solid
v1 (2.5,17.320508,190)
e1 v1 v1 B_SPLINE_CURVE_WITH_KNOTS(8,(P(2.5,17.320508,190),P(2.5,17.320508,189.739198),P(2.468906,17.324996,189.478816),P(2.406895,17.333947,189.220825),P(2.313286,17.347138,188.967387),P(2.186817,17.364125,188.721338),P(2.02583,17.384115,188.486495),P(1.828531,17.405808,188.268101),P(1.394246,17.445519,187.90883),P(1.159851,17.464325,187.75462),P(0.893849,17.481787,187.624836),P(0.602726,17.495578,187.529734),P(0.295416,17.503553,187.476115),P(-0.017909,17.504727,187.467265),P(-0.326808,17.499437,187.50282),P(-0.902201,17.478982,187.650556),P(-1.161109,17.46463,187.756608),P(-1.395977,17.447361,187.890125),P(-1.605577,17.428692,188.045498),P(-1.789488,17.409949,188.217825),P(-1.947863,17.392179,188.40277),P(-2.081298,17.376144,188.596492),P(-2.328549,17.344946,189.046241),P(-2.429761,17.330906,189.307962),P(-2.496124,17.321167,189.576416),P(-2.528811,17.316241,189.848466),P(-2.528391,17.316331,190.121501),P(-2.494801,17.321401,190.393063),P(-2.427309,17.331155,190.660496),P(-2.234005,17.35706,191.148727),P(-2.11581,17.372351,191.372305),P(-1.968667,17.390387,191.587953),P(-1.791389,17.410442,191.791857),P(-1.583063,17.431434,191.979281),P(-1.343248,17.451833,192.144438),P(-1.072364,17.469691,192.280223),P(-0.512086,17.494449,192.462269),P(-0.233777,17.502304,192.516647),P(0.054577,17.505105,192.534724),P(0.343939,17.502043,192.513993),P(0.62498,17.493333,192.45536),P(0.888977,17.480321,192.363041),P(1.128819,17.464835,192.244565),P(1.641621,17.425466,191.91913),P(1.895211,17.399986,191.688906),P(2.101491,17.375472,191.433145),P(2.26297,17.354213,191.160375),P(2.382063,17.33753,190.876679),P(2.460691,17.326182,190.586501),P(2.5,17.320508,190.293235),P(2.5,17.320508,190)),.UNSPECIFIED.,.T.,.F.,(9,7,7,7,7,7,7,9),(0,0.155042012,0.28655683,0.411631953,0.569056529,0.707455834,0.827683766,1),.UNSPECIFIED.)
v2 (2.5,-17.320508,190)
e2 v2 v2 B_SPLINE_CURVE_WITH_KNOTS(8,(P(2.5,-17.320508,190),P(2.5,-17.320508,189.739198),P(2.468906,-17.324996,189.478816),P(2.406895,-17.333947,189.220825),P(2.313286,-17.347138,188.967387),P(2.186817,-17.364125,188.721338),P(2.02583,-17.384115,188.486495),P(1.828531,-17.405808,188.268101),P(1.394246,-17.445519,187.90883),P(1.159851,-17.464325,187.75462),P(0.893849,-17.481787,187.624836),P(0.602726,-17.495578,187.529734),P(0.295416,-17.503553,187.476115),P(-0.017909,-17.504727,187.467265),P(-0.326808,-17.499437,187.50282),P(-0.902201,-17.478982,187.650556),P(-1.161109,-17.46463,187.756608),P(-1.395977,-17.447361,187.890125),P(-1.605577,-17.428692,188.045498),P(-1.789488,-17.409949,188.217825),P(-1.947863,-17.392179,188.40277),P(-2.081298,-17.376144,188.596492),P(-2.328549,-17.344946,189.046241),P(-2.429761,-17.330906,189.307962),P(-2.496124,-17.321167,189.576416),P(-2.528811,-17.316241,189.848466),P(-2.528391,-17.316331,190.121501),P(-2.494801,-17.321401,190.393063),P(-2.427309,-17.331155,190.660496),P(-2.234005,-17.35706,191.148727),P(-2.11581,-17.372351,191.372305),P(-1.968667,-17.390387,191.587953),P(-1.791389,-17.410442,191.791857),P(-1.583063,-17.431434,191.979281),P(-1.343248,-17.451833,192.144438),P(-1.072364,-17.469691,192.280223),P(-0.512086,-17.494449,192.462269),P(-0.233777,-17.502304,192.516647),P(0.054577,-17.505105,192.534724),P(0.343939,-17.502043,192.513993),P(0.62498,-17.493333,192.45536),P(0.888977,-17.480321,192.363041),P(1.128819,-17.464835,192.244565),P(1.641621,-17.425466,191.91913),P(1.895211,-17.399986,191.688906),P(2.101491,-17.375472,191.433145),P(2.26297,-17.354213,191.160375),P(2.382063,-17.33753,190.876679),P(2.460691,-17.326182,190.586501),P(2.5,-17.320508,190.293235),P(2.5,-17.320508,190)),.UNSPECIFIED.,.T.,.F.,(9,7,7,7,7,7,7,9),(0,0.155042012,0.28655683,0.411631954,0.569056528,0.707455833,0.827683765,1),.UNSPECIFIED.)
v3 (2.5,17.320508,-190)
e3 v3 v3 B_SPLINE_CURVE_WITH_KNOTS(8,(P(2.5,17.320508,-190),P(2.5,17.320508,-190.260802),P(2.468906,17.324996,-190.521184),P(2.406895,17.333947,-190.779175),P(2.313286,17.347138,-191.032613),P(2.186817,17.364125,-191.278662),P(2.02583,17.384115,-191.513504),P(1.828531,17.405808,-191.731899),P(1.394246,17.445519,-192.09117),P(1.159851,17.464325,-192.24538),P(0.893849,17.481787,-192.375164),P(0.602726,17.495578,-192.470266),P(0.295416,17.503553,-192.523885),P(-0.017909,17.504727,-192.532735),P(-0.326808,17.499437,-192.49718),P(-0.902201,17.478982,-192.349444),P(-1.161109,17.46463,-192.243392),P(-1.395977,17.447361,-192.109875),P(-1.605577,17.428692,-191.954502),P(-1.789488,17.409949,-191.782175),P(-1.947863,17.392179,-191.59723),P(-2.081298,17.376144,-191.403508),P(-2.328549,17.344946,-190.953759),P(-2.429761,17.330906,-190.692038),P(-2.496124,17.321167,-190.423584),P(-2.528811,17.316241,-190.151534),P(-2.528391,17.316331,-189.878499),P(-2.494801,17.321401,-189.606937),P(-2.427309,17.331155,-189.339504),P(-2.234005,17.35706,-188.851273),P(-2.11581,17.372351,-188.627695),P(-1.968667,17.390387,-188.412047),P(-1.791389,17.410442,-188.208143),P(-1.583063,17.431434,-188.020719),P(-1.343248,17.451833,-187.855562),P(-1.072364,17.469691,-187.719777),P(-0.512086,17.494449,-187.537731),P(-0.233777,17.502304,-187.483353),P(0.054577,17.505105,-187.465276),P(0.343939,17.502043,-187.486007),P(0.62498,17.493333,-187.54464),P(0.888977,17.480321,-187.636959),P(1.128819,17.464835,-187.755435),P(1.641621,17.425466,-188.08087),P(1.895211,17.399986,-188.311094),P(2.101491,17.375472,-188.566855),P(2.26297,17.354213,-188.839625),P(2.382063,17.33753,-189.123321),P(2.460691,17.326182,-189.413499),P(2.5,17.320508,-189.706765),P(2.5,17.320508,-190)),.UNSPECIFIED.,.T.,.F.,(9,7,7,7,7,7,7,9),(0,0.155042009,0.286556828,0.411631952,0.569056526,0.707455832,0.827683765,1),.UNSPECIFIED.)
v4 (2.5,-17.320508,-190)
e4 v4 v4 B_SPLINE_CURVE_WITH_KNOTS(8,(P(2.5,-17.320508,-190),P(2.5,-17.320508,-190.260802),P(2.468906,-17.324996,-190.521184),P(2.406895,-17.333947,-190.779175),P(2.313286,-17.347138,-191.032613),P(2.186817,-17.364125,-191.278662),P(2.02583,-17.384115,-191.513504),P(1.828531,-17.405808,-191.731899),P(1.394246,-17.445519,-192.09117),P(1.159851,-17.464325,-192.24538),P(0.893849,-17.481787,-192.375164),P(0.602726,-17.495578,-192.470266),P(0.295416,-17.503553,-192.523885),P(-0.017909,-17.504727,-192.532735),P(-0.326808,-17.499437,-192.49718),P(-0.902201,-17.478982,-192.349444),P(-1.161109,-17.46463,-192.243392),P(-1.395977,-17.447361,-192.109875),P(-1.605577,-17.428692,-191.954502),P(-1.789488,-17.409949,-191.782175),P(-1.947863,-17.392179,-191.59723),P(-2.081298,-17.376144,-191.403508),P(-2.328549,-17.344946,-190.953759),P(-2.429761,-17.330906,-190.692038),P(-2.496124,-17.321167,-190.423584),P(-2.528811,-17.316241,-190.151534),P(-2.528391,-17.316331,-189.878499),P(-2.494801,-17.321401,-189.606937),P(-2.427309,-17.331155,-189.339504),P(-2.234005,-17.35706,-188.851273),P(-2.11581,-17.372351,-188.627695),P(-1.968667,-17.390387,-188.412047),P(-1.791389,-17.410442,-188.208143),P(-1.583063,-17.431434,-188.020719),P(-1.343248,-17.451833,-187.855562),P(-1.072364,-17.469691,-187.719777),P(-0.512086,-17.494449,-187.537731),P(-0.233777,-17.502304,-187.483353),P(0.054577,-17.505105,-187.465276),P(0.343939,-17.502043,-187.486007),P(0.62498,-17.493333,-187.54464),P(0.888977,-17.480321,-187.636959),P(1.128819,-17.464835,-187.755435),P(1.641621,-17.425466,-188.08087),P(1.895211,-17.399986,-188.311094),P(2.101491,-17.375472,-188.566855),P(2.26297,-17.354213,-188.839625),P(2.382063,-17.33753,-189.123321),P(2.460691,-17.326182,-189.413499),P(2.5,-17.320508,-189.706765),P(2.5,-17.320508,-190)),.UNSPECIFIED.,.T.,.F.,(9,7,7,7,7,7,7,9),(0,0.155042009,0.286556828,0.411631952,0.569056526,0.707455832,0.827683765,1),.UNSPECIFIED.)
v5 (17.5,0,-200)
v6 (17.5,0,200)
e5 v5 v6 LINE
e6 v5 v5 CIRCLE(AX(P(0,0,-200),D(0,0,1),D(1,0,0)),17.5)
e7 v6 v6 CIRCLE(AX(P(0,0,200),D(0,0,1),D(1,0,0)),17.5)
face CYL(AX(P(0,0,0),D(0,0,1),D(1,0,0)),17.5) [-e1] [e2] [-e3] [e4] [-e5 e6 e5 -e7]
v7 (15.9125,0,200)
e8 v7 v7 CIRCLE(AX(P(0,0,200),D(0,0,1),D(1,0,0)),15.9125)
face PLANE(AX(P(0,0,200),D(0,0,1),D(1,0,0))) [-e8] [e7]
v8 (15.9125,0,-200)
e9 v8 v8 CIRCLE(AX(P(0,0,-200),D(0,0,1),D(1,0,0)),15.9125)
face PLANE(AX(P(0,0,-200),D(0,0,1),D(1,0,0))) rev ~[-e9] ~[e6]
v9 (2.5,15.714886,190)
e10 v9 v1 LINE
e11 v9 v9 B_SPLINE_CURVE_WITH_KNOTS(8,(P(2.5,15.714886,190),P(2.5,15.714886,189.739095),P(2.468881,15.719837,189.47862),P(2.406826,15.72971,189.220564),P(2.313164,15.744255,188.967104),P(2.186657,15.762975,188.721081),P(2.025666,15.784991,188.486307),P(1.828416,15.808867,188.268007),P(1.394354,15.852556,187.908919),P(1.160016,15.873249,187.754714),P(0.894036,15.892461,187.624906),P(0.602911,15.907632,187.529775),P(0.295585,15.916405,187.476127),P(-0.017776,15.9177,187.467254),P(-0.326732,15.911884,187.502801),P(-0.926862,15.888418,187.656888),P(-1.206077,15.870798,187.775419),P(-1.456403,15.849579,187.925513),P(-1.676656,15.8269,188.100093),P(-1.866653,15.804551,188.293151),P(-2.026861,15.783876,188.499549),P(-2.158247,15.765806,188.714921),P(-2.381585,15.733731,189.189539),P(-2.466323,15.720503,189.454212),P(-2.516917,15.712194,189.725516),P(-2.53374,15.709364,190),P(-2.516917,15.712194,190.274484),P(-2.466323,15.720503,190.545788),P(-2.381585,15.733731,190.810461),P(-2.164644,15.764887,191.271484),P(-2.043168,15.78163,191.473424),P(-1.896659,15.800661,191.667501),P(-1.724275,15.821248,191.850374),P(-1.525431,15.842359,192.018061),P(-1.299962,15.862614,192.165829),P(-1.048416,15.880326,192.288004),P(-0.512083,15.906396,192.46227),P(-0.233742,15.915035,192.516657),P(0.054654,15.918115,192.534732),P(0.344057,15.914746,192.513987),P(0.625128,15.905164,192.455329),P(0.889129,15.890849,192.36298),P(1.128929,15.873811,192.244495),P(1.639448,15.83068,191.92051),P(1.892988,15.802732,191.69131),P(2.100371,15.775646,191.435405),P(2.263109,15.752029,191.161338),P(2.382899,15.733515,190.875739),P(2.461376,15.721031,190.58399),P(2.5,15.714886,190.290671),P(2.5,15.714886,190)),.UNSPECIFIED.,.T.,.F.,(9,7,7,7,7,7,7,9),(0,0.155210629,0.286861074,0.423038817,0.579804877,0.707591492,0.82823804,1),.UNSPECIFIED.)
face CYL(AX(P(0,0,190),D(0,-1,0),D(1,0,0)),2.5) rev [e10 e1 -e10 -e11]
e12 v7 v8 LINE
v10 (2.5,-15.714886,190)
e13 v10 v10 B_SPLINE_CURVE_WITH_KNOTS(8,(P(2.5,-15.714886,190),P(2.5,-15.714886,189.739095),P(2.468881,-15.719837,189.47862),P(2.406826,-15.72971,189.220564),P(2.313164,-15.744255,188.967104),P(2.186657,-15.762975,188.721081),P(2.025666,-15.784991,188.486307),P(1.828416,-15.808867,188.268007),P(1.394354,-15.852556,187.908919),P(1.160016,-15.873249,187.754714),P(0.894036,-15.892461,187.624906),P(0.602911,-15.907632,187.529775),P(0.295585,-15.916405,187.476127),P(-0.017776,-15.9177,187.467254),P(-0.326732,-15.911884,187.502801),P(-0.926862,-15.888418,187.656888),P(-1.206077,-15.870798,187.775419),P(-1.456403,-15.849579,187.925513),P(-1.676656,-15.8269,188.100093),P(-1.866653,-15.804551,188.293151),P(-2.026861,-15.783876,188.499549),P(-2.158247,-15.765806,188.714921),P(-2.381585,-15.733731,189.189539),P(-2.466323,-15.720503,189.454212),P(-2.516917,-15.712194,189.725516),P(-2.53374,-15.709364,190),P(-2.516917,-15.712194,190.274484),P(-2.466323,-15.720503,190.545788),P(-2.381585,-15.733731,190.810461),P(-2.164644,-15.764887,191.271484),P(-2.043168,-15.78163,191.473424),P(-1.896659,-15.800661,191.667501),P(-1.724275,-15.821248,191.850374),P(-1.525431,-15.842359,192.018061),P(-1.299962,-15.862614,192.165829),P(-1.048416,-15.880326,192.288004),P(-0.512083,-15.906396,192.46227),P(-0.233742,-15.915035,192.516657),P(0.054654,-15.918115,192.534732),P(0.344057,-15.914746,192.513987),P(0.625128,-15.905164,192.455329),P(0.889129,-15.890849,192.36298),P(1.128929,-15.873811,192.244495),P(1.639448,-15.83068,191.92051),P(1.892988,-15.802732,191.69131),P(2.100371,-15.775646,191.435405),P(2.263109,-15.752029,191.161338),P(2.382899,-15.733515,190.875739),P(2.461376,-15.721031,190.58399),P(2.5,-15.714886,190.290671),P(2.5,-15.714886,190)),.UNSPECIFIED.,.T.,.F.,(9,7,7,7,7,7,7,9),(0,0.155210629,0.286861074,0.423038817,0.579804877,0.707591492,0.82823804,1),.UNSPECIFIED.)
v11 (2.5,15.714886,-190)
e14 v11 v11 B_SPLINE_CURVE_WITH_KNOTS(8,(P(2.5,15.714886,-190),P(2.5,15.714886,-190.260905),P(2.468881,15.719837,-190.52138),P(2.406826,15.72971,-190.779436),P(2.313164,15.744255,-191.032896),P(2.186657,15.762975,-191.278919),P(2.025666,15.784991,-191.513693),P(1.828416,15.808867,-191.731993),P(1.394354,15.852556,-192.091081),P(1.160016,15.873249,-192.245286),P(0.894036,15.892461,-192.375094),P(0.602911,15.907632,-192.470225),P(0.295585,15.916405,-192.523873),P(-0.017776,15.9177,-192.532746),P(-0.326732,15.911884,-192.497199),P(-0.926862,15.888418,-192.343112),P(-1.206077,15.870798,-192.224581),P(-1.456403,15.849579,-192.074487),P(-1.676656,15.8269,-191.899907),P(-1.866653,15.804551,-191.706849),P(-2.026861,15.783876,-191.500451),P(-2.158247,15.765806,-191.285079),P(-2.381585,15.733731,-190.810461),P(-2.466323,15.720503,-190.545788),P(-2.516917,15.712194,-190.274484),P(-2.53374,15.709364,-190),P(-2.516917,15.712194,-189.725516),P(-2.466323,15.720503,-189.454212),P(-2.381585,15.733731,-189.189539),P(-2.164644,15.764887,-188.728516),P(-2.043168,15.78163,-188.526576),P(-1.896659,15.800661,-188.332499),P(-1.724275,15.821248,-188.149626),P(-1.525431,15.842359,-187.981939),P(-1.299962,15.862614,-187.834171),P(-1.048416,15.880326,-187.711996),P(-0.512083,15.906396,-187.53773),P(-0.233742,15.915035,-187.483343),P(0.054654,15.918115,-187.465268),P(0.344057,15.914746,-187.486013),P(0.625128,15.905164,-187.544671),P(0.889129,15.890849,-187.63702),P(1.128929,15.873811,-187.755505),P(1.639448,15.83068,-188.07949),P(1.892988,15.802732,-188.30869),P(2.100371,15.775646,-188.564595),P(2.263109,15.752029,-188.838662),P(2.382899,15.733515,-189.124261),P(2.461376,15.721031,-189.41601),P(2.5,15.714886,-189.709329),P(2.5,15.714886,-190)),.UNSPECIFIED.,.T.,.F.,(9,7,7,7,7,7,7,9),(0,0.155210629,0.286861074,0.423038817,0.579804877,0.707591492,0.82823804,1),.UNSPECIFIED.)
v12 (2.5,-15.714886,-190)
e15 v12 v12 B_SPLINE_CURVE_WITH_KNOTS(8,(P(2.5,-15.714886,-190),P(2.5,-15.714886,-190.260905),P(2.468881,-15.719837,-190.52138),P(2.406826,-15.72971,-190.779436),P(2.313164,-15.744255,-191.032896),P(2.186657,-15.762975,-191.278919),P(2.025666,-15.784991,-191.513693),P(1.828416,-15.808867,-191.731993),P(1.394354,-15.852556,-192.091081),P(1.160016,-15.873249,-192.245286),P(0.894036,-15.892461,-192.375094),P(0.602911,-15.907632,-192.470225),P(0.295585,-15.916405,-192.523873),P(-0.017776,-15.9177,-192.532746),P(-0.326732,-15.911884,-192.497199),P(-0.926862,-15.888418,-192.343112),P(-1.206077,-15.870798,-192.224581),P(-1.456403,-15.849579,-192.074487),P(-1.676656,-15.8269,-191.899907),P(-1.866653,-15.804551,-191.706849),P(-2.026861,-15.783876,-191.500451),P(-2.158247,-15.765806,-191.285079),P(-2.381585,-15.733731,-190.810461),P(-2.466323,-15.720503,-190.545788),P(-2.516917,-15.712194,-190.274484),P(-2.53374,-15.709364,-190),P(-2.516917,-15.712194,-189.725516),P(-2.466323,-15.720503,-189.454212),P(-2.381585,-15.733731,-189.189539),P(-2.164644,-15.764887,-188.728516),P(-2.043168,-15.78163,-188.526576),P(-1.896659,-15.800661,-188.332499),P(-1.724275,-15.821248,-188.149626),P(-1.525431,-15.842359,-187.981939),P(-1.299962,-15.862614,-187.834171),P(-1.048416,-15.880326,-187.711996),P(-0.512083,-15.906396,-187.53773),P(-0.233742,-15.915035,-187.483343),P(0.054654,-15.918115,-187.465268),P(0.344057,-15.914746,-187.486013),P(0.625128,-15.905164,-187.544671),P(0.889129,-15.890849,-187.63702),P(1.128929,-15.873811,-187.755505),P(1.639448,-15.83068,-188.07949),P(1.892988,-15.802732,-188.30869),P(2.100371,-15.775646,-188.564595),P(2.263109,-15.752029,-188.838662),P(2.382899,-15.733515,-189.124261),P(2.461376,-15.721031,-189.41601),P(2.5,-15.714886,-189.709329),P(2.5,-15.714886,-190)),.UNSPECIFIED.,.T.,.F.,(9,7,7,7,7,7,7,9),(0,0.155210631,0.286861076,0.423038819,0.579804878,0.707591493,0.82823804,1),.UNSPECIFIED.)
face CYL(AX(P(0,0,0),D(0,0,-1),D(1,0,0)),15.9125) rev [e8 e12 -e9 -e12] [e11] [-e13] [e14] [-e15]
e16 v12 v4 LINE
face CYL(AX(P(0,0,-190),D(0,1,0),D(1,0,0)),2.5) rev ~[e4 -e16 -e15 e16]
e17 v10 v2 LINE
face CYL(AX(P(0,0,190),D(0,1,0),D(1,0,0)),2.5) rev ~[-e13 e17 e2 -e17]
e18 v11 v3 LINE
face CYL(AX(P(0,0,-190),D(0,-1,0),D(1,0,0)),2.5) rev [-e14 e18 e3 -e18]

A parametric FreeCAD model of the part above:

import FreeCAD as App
import Part
import Sketcher
Q = App.Units.Quantity

doc = App.newDocument("Part")
body = doc.addObject("PartDesign::Body", "Body")

# Sketch on XY plane
sketch1 = body.newObject("Sketcher::SketchObject", "Sketch")
sketch1.AttachmentSupport = (doc.getObject("XY_Plane"), [""])
sketch1.MapMode = "FlatFace"
sketch1.addGeometry(Part.Circle(App.Vector(0, 0, 0), App.Vector(0, 0, 1), 18), False)
sketch1.addGeometry(Part.Circle(App.Vector(0, 0, 0), App.Vector(0, 0, 1), 16), False)
sketch1.addConstraint(Sketcher.Constraint("Coincident", 0, 3, -1, 1))
sketch1.addConstraint(Sketcher.Constraint("Coincident", 1, 3, -1, 1))
sketch1.addConstraint(Sketcher.Constraint("Diameter", 0, Q("35 mm")))
sketch1.addConstraint(Sketcher.Constraint("Diameter", 1, Q("31.825 mm")))
pad1 = body.newObject("PartDesign::Pad", "Pad")
pad1.Profile = sketch1
pad1.Length = 400
pad1.Midplane = True

# Sketch on XZ plane
sketch2 = body.newObject("Sketcher::SketchObject", "Sketch001")
sketch2.AttachmentSupport = (doc.getObject("XZ_Plane"), [""])
sketch2.MapMode = "FlatFace"
sketch2.addGeometry(Part.Circle(App.Vector(0, -190, 0), App.Vector(0, 0, 1), 2.5), False)
sketch2.addGeometry(Part.Circle(App.Vector(0, 190, 0), App.Vector(0, 0, 1), 2.5), False)
sketch2.addConstraint(Sketcher.Constraint("Equal", 0, 1))
sketch2.addConstraint(Sketcher.Constraint("Symmetric", 0, 3, 1, 3, -1, 1))
sketch2.addConstraint(Sketcher.Constraint("PointOnObject", 0, 3, -2))
sketch2.addConstraint(Sketcher.Constraint("Diameter", 0, Q("5 mm")))
sketch2.addConstraint(Sketcher.Constraint("DistanceY", 0, 3, -1, 1, Q("190 mm")))
pocket1 = body.newObject("PartDesign::Pocket", "Pocket")
pocket1.Profile = sketch2
pocket1.Type = "ThroughAll"
pocket1.Midplane = True

doc.recompute()
